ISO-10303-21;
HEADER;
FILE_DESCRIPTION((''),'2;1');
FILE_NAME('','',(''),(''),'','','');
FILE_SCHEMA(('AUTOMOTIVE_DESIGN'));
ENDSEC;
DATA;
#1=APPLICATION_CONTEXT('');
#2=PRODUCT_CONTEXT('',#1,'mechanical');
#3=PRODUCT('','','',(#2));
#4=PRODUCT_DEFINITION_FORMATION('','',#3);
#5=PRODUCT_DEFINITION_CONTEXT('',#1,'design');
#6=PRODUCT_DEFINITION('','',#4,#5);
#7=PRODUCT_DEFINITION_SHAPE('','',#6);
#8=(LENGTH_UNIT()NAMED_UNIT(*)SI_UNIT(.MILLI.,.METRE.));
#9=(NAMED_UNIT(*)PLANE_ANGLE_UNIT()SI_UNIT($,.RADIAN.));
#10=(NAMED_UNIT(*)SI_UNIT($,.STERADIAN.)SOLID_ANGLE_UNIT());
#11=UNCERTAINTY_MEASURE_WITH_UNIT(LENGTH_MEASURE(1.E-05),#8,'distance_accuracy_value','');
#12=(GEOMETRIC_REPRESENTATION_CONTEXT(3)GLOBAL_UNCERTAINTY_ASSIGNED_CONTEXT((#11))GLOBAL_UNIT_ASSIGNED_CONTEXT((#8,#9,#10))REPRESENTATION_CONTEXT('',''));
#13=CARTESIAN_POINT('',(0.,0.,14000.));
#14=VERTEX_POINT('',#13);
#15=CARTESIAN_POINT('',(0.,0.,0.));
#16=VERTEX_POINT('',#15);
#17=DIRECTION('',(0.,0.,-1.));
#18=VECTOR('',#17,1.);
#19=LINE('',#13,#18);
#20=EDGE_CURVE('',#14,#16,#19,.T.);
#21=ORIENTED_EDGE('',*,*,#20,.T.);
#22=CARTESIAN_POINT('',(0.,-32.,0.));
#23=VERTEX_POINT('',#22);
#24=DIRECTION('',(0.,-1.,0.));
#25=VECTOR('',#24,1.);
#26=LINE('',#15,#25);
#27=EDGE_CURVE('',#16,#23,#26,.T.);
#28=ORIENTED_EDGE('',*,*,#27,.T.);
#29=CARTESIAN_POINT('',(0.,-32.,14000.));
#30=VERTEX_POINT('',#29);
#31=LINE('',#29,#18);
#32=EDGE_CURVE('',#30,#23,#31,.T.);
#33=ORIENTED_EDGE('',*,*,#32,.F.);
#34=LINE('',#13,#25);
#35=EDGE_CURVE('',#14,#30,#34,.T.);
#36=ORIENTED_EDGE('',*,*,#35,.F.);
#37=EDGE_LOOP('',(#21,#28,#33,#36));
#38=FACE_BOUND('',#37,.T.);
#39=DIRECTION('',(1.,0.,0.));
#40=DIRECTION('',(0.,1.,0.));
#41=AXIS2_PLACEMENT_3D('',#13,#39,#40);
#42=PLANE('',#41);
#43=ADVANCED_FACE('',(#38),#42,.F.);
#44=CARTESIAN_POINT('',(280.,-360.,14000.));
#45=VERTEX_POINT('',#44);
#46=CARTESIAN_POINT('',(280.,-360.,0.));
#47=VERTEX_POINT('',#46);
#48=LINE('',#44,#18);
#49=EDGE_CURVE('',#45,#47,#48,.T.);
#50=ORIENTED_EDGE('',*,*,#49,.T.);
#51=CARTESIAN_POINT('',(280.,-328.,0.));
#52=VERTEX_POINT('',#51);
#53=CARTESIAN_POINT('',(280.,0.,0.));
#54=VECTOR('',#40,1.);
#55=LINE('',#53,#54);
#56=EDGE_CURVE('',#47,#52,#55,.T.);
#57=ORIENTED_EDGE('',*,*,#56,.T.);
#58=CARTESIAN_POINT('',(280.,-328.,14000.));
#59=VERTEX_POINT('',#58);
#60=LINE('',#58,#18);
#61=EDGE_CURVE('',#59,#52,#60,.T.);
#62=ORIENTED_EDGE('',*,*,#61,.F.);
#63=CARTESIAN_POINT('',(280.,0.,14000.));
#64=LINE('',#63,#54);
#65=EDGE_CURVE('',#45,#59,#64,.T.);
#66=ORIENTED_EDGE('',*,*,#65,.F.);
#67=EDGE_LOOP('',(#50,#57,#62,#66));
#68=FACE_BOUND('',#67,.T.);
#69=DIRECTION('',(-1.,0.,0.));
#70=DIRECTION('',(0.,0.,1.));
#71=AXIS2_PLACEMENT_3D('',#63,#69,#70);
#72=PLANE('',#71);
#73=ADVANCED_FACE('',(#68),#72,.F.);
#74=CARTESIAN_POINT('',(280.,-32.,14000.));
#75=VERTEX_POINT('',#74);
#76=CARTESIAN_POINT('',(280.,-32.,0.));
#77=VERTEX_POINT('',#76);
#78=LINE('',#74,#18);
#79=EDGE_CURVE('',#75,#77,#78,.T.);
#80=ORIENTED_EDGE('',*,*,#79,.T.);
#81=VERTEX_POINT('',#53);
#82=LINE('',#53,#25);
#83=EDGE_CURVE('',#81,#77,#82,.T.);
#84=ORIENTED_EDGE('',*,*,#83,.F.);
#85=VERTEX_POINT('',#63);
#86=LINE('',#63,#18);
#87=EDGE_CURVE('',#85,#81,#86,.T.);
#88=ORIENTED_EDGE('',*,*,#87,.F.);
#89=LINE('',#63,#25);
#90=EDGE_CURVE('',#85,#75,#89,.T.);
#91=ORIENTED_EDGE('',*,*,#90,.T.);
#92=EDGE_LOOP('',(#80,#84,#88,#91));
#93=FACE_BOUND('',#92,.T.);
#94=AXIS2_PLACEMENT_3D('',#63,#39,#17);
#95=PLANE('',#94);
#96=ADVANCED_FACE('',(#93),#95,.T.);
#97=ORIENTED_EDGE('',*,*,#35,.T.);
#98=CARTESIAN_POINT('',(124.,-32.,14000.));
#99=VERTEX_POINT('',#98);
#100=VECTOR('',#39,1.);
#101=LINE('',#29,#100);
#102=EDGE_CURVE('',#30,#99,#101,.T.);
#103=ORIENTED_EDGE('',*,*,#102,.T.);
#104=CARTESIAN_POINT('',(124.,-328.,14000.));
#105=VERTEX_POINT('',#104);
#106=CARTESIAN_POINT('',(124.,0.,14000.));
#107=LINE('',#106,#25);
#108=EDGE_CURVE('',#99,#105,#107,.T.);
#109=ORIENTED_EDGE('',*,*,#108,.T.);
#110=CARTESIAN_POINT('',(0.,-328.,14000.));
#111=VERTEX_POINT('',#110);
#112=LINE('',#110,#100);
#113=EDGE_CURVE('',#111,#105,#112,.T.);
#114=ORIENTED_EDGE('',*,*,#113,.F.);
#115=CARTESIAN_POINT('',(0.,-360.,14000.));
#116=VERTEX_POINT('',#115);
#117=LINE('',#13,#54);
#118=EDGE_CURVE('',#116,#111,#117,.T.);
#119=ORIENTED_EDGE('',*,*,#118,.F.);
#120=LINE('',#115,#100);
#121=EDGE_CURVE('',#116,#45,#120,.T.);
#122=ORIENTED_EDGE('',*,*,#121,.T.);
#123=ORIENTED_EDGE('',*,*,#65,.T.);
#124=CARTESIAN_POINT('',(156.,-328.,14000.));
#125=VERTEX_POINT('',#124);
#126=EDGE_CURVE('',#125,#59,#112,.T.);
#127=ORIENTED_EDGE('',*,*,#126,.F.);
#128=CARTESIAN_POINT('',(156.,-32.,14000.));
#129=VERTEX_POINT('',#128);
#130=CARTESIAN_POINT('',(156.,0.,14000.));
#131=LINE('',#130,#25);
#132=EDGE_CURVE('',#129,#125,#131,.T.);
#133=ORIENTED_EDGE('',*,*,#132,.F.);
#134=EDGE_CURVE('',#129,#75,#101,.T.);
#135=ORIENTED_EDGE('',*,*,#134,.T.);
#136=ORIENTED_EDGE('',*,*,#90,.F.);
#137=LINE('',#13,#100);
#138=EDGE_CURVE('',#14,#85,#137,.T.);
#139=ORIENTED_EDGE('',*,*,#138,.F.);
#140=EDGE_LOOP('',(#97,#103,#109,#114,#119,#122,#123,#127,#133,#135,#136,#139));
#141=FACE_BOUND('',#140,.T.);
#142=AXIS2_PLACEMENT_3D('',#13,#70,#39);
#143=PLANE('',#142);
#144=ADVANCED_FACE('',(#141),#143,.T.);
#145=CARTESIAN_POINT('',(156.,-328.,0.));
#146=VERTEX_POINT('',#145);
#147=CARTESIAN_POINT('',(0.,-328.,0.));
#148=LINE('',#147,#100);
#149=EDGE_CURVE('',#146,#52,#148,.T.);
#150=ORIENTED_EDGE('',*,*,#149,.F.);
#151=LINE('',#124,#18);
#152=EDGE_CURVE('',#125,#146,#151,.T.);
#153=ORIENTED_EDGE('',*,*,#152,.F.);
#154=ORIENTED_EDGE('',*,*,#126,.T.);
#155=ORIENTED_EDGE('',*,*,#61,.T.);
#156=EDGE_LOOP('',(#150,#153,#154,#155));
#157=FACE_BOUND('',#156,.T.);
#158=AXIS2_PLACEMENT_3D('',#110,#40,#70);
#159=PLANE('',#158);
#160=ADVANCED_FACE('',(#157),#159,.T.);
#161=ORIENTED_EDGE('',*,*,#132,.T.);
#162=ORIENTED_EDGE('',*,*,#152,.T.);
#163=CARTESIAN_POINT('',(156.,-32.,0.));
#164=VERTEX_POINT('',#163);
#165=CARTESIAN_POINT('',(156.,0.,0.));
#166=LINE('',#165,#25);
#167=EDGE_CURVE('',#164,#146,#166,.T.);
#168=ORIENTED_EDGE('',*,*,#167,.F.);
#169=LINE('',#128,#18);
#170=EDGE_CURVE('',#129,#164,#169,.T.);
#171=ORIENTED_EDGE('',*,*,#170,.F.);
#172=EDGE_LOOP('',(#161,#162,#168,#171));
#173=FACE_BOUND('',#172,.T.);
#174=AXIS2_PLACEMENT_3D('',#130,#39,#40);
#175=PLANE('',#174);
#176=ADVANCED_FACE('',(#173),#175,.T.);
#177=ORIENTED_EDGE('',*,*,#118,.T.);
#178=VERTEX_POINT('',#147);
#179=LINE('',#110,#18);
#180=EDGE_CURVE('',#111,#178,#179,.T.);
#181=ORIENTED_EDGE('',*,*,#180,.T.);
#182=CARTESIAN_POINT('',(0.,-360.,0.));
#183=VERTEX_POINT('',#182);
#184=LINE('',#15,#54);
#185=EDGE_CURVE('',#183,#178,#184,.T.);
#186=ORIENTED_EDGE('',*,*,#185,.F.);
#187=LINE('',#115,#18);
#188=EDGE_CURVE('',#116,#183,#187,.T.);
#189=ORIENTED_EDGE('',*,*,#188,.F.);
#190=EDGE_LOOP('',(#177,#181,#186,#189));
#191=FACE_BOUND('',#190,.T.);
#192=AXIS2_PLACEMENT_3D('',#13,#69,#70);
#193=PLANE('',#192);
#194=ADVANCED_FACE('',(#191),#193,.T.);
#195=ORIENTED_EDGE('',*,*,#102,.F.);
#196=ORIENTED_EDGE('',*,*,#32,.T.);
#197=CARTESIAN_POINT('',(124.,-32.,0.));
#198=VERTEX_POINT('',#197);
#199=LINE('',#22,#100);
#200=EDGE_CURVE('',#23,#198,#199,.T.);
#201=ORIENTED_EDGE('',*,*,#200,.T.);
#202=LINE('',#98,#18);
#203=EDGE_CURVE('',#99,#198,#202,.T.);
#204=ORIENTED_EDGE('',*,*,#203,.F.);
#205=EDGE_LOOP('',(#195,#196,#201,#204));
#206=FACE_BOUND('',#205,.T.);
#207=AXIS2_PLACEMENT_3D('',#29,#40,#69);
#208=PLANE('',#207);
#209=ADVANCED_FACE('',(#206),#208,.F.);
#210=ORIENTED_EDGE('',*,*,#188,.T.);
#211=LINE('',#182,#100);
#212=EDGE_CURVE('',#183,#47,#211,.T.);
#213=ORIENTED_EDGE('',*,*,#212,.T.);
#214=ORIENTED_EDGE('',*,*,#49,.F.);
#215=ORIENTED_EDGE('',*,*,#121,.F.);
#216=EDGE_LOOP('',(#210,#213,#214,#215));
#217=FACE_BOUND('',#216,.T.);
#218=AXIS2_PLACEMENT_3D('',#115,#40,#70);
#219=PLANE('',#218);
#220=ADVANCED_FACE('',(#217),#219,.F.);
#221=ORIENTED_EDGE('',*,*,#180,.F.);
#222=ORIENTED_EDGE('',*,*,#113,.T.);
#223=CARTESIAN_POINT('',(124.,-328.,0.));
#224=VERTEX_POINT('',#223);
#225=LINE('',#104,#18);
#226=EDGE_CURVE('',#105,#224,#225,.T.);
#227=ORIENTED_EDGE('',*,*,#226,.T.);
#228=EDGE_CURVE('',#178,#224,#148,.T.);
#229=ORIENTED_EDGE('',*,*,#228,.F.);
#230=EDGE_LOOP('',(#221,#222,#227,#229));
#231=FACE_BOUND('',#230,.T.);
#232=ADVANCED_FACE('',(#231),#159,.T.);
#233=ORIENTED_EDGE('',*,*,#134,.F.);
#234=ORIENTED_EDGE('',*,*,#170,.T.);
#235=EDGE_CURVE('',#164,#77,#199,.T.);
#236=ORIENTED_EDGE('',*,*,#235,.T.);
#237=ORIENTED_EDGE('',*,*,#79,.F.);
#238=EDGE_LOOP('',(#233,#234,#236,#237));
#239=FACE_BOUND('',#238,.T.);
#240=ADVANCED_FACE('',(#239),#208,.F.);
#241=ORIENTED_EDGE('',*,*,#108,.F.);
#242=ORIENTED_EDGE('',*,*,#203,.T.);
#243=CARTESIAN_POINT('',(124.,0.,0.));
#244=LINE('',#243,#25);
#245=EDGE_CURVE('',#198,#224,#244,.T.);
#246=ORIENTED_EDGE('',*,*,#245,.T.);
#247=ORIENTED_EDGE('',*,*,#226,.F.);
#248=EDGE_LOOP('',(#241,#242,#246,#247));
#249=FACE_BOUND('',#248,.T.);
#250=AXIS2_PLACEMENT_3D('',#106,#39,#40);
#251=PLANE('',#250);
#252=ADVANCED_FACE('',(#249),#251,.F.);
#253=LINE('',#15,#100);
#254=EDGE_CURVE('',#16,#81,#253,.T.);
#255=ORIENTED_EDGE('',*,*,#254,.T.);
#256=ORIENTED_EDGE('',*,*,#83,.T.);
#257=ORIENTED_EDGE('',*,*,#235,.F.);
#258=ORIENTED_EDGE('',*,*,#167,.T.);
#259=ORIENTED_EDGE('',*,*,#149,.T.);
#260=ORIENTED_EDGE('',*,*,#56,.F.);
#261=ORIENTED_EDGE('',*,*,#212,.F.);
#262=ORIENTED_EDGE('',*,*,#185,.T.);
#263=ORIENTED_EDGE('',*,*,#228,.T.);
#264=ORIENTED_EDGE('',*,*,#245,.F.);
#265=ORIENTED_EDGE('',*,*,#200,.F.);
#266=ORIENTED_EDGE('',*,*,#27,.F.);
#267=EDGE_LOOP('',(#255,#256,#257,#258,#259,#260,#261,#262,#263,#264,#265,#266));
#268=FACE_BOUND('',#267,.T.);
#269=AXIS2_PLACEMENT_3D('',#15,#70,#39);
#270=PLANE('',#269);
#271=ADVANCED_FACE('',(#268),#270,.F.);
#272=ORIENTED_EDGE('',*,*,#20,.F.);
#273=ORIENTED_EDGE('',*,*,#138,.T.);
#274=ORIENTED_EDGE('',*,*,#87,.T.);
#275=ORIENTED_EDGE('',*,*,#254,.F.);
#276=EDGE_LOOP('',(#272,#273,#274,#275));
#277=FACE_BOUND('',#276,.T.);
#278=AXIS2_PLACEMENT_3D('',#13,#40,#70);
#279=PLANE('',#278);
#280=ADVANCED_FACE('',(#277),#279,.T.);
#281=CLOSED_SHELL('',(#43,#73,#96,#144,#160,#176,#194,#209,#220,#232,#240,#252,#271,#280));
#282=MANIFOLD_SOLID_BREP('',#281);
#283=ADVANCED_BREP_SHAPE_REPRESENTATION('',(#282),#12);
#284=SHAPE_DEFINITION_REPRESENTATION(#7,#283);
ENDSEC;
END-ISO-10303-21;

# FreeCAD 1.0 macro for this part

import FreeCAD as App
import Part
import Sketcher

V = App.Vector

doc = App.newDocument("Part")
params = doc.addObject("Spreadsheet::Sheet", "Params")
for row, (alias, value) in enumerate([
    ("sketch1_width", "124 mm"),
    ("sketch1_width2", "280 mm"),
    ("sketch1_height", "296 mm"),
    ("sketch1_height2", "32 mm"),
    ("pad1_length", "14000 mm"),
], start=1):
    params.set(f"A{row}", alias)
    params.set(f"B{row}", "=" + value)
    params.setAlias(f"B{row}", alias)

body = doc.addObject("PartDesign::Body", "Body")

# Sketch on XY plane
sketch1 = body.newObject("Sketcher::SketchObject", "Sketch")
sketch1.AttachmentSupport = (doc.getObject("XY_Plane"), [""])
sketch1.MapMode = "FlatFace"
sketch1.addGeometry([
    Part.LineSegment(V(280, -328, 0), V(156, -328, 0)),  # 0
    Part.LineSegment(V(156, -328, 0), V(156, -32, 0)),  # 1
    Part.LineSegment(V(156, -32, 0), V(280, -32, 0)),  # 2
    Part.LineSegment(V(280, -32, 0), V(280, 0, 0)),  # 3
    Part.LineSegment(V(280, 0, 0), V(0, 0, 0)),  # 4
    Part.LineSegment(V(0, 0, 0), V(0, -32, 0)),  # 5
    Part.LineSegment(V(0, -32, 0), V(124, -32, 0)),  # 6
    Part.LineSegment(V(124, -32, 0), V(124, -328, 0)),  # 7
    Part.LineSegment(V(124, -328, 0), V(0, -328, 0)),  # 8
    Part.LineSegment(V(0, -328, 0), V(0, -360, 0)),  # 9
    Part.LineSegment(V(0, -360, 0), V(280, -360, 0)),  # 10
    Part.LineSegment(V(280, -360, 0), V(280, -328, 0)),  # 11
], False)
sketch1.addConstraint([
    Sketcher.Constraint("Coincident", 0, 2, 1, 1),
    Sketcher.Constraint("Coincident", 1, 2, 2, 1),
    Sketcher.Constraint("Coincident", 2, 2, 3, 1),
    Sketcher.Constraint("Coincident", 3, 2, 4, 1),
    Sketcher.Constraint("Coincident", 4, 2, 5, 1),
    Sketcher.Constraint("Coincident", 5, 2, 6, 1),
    Sketcher.Constraint("Coincident", 6, 2, 7, 1),
    Sketcher.Constraint("Coincident", 7, 2, 8, 1),
    Sketcher.Constraint("Coincident", 8, 2, 9, 1),
    Sketcher.Constraint("Coincident", 9, 2, 10, 1),
    Sketcher.Constraint("Coincident", 10, 2, 11, 1),
    Sketcher.Constraint("Coincident", 11, 2, 0, 1),
    Sketcher.Constraint("Horizontal", 0),
    Sketcher.Constraint("Vertical", 1),
    Sketcher.Constraint("Horizontal", 2),
    Sketcher.Constraint("Vertical", 3),
    Sketcher.Constraint("Horizontal", 4),
    Sketcher.Constraint("Vertical", 5),
    Sketcher.Constraint("Horizontal", 6),
    Sketcher.Constraint("Vertical", 7),
    Sketcher.Constraint("Horizontal", 8),
    Sketcher.Constraint("Vertical", 9),
    Sketcher.Constraint("Horizontal", 10),
    Sketcher.Constraint("Vertical", 11),
    Sketcher.Constraint("Coincident", 4, 2, -1, 1),
    Sketcher.Constraint("PointOnObject", 8, 2, -2),
    Sketcher.Constraint("Horizontal", 2, 2, 5, 2),
    Sketcher.Constraint("Horizontal", 0, 2, 7, 2),
    Sketcher.Constraint("Vertical", 3, 2, 10, 2),
    Sketcher.Constraint("Equal", 2, 6),
    Sketcher.Constraint("Equal", 5, 9),
    Sketcher.Constraint("DistanceX", 0, 2, 0, 1, 124.0),
    Sketcher.Constraint("DistanceX", 4, 2, 4, 1, 280.0),
    Sketcher.Constraint("DistanceY", 1, 1, 1, 2, 296.0),
    Sketcher.Constraint("DistanceY", 3, 1, 3, 2, 32.0),
])
sketch1.setExpression("Constraints[31]", "Params.sketch1_width")
sketch1.setExpression("Constraints[32]", "Params.sketch1_width2")
sketch1.setExpression("Constraints[33]", "Params.sketch1_height")
sketch1.setExpression("Constraints[34]", "Params.sketch1_height2")
pad1 = body.newObject("PartDesign::Pad", "Pad")
pad1.Profile = sketch1
pad1.setExpression("Length", "Params.pad1_length")

doc.recompute()
